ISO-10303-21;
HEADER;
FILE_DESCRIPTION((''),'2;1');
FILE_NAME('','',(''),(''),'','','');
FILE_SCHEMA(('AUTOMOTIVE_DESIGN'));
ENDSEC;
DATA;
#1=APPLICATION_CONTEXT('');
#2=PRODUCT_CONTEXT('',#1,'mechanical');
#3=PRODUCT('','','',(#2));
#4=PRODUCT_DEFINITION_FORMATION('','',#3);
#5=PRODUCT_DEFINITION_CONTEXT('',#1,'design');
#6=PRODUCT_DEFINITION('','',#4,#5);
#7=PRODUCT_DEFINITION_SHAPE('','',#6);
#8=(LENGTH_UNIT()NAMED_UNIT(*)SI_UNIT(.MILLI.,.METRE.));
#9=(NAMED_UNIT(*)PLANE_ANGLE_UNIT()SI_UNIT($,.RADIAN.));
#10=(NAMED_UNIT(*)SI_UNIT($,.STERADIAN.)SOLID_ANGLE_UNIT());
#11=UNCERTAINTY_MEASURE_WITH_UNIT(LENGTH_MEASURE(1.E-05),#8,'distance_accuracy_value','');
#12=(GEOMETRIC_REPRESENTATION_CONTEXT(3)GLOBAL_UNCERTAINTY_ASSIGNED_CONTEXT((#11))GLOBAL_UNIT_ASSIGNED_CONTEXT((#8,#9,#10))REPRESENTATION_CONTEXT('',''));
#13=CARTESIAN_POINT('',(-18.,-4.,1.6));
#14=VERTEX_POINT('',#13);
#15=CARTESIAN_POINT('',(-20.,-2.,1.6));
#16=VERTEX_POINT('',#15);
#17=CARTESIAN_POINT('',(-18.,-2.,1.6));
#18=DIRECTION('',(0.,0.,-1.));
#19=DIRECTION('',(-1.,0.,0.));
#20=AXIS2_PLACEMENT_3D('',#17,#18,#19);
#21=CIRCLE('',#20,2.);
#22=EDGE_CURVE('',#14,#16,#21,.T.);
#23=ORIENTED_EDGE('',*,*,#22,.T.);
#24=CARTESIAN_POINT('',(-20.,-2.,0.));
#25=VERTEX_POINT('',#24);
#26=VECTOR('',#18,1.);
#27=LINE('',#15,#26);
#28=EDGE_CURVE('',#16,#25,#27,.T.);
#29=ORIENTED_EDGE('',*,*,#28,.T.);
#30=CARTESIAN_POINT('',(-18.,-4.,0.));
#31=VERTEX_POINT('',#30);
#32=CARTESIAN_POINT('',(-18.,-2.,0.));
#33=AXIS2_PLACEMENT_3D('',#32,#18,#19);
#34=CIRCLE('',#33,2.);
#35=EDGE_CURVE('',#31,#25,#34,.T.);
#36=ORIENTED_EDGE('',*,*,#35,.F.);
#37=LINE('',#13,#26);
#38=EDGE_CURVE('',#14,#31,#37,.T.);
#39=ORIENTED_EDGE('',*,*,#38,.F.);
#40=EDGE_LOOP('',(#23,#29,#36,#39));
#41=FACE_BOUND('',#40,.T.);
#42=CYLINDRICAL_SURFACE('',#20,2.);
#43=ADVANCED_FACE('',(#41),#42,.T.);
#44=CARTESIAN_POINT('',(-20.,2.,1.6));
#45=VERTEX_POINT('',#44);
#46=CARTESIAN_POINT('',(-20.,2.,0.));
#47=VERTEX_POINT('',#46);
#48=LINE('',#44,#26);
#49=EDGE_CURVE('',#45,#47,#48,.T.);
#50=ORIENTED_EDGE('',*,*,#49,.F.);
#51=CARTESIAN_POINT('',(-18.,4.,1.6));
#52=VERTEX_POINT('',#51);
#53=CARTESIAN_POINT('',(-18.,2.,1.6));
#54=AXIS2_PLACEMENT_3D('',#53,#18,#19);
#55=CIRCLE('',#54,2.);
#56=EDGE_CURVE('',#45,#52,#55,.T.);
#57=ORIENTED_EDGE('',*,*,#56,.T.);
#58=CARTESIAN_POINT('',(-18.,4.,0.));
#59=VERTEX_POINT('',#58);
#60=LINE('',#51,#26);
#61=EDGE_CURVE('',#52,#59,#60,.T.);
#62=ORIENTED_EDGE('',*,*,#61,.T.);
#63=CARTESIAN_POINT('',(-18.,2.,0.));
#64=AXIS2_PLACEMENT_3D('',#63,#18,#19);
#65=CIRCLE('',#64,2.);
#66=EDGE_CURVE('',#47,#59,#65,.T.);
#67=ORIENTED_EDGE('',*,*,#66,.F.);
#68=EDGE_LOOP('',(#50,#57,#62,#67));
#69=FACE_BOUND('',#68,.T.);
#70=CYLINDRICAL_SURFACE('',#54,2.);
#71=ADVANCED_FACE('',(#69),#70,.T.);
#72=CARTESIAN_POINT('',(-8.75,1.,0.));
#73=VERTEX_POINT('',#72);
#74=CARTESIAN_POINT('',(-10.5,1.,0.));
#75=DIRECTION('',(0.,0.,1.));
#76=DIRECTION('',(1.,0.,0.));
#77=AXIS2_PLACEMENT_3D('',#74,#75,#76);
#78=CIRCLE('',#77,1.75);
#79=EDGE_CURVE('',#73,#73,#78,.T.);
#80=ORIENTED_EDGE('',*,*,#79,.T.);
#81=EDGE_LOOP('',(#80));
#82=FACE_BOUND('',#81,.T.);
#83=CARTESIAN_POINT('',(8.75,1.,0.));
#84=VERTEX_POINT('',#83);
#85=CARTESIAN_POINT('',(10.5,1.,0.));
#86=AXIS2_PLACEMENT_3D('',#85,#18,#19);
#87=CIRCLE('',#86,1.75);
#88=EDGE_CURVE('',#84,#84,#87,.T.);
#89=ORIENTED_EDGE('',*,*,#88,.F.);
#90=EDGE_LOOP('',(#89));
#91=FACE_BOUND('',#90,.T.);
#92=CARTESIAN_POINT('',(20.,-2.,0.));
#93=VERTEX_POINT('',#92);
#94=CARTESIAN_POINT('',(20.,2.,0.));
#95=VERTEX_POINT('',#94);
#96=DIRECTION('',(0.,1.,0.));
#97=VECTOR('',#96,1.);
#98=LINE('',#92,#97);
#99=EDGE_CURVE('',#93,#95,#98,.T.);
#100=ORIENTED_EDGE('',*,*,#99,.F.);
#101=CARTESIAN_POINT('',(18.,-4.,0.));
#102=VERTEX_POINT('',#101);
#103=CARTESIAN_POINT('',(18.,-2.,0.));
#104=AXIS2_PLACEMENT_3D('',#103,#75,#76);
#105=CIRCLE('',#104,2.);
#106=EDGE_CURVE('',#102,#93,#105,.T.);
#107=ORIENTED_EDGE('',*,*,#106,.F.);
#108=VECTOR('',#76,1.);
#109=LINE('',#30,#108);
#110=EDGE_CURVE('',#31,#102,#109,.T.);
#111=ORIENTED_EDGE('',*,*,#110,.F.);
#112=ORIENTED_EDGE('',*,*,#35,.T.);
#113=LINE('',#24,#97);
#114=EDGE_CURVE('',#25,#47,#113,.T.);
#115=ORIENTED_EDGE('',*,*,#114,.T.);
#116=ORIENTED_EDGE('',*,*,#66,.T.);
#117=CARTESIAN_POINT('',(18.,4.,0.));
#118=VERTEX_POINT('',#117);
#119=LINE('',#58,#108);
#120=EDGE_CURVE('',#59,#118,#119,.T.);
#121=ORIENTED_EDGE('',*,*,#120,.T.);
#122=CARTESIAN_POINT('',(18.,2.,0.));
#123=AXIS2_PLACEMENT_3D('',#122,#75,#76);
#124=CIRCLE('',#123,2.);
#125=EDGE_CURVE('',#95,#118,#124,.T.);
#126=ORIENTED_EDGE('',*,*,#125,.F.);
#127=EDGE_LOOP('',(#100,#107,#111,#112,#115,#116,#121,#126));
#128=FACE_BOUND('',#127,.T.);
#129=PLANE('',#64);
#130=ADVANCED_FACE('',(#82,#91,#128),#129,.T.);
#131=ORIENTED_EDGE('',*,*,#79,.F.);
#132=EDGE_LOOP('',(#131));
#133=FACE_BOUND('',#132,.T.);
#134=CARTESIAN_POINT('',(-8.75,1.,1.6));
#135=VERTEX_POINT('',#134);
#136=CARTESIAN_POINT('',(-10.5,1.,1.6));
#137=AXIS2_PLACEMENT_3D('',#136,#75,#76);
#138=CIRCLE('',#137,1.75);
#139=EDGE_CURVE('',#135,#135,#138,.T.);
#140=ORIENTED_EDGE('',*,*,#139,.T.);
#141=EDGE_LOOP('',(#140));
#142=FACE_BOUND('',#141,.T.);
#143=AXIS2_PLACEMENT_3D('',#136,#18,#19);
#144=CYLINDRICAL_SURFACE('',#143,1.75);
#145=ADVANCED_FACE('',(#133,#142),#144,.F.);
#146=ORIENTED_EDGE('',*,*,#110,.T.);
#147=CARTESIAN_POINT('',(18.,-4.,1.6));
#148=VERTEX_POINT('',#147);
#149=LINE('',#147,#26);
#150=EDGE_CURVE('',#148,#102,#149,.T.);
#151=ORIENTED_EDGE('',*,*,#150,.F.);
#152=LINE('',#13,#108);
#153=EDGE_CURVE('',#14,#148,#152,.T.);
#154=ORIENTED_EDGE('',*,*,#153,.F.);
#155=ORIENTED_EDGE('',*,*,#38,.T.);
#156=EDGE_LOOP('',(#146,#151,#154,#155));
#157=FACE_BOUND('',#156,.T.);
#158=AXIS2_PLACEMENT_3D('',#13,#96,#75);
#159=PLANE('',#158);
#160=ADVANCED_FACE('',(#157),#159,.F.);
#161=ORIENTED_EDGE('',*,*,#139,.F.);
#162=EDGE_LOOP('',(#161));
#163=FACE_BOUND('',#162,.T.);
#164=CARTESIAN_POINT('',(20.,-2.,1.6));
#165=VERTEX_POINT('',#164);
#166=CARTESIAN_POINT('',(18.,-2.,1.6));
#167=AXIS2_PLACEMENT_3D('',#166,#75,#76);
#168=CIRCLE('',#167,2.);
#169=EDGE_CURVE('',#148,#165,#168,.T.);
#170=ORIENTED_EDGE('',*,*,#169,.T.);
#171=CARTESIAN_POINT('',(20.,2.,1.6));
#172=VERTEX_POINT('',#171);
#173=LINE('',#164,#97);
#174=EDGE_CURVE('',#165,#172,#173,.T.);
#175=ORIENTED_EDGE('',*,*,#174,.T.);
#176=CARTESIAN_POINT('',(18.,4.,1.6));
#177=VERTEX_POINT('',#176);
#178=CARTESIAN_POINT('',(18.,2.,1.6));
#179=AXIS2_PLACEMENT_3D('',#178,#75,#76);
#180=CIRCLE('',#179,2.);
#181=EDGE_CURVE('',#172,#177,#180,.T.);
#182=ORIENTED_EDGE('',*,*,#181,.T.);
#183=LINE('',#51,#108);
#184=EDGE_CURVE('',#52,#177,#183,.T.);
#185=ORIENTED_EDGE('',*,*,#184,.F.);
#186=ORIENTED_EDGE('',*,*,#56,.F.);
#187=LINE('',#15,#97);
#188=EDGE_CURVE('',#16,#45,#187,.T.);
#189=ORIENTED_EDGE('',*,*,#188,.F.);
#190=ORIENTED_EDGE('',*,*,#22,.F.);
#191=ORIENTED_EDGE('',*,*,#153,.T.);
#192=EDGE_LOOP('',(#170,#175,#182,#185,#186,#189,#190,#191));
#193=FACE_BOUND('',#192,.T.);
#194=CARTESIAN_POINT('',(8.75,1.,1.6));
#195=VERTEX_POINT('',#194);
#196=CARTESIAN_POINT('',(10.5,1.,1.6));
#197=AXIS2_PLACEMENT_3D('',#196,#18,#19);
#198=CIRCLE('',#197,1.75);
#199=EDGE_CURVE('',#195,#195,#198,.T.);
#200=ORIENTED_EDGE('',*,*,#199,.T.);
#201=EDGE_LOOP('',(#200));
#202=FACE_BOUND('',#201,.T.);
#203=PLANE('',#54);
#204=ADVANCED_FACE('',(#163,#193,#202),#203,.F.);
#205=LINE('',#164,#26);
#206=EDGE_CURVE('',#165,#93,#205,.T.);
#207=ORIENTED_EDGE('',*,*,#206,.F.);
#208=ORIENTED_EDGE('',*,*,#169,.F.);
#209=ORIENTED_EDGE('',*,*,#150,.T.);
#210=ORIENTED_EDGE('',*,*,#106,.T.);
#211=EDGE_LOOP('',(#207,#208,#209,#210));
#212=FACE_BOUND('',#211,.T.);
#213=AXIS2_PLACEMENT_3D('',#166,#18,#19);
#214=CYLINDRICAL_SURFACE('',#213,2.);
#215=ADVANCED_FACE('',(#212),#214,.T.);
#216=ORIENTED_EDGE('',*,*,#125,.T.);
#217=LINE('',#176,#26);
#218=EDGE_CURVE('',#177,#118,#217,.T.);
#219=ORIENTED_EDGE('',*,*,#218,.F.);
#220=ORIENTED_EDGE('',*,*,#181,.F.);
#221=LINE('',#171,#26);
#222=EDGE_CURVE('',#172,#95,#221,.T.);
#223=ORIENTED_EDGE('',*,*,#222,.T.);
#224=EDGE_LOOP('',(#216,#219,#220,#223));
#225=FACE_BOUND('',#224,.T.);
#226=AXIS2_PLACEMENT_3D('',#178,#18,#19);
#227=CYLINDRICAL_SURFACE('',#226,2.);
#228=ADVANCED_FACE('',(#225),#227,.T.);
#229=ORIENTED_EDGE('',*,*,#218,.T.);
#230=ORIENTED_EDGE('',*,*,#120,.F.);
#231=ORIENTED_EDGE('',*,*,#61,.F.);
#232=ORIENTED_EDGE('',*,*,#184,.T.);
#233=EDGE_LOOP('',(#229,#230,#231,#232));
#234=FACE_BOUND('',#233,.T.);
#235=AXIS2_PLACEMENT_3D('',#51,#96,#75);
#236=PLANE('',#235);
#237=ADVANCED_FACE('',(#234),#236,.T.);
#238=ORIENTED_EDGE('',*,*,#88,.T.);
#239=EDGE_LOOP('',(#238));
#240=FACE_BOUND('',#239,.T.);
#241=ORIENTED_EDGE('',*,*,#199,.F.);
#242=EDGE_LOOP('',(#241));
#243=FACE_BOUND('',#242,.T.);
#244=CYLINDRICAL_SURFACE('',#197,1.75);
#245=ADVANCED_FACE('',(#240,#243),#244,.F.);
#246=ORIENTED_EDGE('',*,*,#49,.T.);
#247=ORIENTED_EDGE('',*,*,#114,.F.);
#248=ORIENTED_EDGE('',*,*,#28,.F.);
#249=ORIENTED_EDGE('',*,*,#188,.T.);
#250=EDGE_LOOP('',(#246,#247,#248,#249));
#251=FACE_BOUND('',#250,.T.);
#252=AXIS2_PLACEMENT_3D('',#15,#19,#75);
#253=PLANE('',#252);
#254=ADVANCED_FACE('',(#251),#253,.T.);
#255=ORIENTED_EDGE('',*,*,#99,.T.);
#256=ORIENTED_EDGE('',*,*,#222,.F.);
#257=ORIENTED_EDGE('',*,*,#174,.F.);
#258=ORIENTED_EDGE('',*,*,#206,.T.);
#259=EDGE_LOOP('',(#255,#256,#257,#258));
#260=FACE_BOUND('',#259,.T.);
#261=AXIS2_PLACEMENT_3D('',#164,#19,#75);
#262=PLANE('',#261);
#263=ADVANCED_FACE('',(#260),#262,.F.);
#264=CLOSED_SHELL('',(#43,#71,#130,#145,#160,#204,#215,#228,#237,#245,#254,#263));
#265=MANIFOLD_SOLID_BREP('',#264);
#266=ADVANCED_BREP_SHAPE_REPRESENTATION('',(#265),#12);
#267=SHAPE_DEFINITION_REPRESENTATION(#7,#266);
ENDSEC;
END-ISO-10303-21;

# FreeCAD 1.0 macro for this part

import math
import FreeCAD as App
import Part
import Sketcher

V = App.Vector
Q = App.Units.Quantity

doc = App.newDocument("Part")
body = doc.addObject("PartDesign::Body", "Body")

sketch1 = body.newObject("Sketcher::SketchObject", "Sketch")
sketch1.AttachmentSupport = (doc.getObject("XY_Plane"), [""])
sketch1.MapMode = "FlatFace"
sketch1.addGeometry([
    Part.LineSegment(V(-18, -4, 0), V(18, -4, 0)),
    Part.ArcOfCircle(Part.Circle(V(18, -2, 0), V(0, 0, 1), 2), math.radians(-90), math.radians(0)),
    Part.LineSegment(V(20, -2, 0), V(20, 2, 0)),
    Part.ArcOfCircle(Part.Circle(V(18, 2, 0), V(0, 0, 1), 2), math.radians(0), math.radians(90)),
    Part.LineSegment(V(18, 4, 0), V(-18, 4, 0)),
    Part.ArcOfCircle(Part.Circle(V(-18, 2, 0), V(0, 0, 1), 2), math.radians(90), math.radians(180)),
    Part.LineSegment(V(-20, 2, 0), V(-20, -2, 0)),
    Part.ArcOfCircle(Part.Circle(V(-18, -2, 0), V(0, 0, 1), 2), math.radians(-180), math.radians(-90)),
    Part.Circle(V(-10.5, 1, 0), V(0, 0, 1), 1.75),
    Part.Circle(V(10.5, 1, 0), V(0, 0, 1), 1.75),
], False)
sketch1.addConstraint([
    Sketcher.Constraint("Tangent", 0, 2, 1, 1),
    Sketcher.Constraint("Tangent", 1, 2, 2, 1),
    Sketcher.Constraint("Tangent", 2, 2, 3, 1),
    Sketcher.Constraint("Tangent", 3, 2, 4, 1),
    Sketcher.Constraint("Tangent", 4, 2, 5, 1),
    Sketcher.Constraint("Tangent", 5, 2, 6, 1),
    Sketcher.Constraint("Tangent", 6, 2, 7, 1),
    Sketcher.Constraint("Tangent", 7, 2, 0, 1),
    Sketcher.Constraint("Horizontal", 0),
    Sketcher.Constraint("Vertical", 2),
    Sketcher.Constraint("Horizontal", 4),
    Sketcher.Constraint("Vertical", 6),
    Sketcher.Constraint("Equal", 1, 3),
    Sketcher.Constraint("Equal", 3, 5),
    Sketcher.Constraint("Equal", 5, 7),
    Sketcher.Constraint("Equal", 8, 9),
    Sketcher.Constraint("Symmetric", 1, 3, 5, 3, -1, 1),
    Sketcher.Constraint("Symmetric", 8, 3, 9, 3, -2),
    Sketcher.Constraint("Radius", 1, Q("2 mm")),
    Sketcher.Constraint("Diameter", 8, Q("3.5 mm")),
    Sketcher.Constraint("DistanceX", 0, 1, 0, 2, Q("36 mm")),
    Sketcher.Constraint("DistanceY", 2, 1, 2, 2, Q("4 mm")),
    Sketcher.Constraint("DistanceY", -1, 1, 8, 3, Q("1 mm")),
    Sketcher.Constraint("DistanceX", 8, 3, 9, 3, Q("21 mm")),
])
pad1 = body.newObject("PartDesign::Pad", "Pad")
pad1.Profile = sketch1
pad1.Length = 1.6

doc.recompute()
